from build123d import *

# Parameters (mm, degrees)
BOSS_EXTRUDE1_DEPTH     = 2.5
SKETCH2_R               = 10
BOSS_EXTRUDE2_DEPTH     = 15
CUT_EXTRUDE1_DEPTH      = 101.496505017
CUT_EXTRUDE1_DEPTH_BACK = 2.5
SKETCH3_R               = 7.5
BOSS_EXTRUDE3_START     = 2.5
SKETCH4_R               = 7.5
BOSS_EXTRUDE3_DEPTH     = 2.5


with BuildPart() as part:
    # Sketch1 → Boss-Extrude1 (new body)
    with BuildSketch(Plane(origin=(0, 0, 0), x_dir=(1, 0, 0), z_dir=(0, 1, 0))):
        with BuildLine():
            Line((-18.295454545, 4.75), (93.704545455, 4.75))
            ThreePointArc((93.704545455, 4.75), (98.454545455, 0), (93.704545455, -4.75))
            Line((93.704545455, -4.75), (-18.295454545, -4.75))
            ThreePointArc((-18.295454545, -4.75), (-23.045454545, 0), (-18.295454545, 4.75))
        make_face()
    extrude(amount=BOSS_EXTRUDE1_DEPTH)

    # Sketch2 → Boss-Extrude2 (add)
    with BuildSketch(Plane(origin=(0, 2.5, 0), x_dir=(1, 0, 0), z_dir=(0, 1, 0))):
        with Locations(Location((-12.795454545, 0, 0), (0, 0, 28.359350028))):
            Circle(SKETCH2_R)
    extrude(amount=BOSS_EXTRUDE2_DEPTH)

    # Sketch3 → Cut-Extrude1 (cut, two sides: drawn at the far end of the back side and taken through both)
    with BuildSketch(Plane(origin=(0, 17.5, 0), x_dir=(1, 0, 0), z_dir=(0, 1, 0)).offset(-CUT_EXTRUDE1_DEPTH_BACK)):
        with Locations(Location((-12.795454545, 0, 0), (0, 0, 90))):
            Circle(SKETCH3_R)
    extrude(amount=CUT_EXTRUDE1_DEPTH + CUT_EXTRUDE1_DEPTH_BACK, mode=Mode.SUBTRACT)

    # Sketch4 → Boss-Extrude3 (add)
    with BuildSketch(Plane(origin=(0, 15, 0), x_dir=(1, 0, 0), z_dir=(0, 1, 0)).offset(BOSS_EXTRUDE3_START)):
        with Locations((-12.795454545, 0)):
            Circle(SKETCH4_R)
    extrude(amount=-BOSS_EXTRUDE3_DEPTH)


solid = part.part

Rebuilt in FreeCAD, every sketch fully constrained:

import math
import FreeCAD as App
import Part
import Sketcher
from FreeCAD import Vector
Q = App.Units.Quantity

doc = App.newDocument("Part")
body = doc.addObject("PartDesign::Body", "Body")

# Sketch on XZ plane
sketch1 = body.newObject("Sketcher::SketchObject", "Sketch")
sketch1.AttachmentSupport = (doc.getObject("XZ_Plane"), [""])
sketch1.MapMode = "FlatFace"
sketch1.addGeometry([
    Part.LineSegment(Vector(93.7, -4.8, 0), Vector(-18.3, -4.8, 0)),
    Part.ArcOfCircle(Part.Circle(Vector(-18.3, 0, 0), Vector(0, 0, 1), 4.8), math.radians(90), math.radians(270)),
    Part.LineSegment(Vector(-18.3, 4.8, 0), Vector(93.7, 4.8, 0)),
    Part.ArcOfCircle(Part.Circle(Vector(93.7, 0, 0), Vector(0, 0, 1), 4.8), math.radians(-90), math.radians(90)),
], False)
sketch1.addConstraint([
    Sketcher.Constraint("Tangent", 0, 2, 1, 2),
    Sketcher.Constraint("Tangent", 1, 1, 2, 1),
    Sketcher.Constraint("Tangent", 2, 2, 3, 2),
    Sketcher.Constraint("Tangent", 3, 1, 0, 1),
    Sketcher.Constraint("Horizontal", 0),
    Sketcher.Constraint("Horizontal", 2),
    Sketcher.Constraint("PointOnObject", 1, 3, -1),
    Sketcher.Constraint("DistanceX", 0, 2, 0, 1, Q("112 mm")),
    Sketcher.Constraint("Radius", 1, Q("4.75 mm")),
    Sketcher.Constraint("DistanceX", 1, 3, -1, 1, Q("18.295455 mm")),
])
pad1 = body.newObject("PartDesign::Pad", "Pad")
pad1.Profile = sketch1
pad1.Length = 2.5
pad1.Reversed = True

# Sketch on XZ plane
sketch2 = body.newObject("Sketcher::SketchObject", "Sketch001")
sketch2.AttachmentSupport = (doc.getObject("XZ_Plane"), [""])
sketch2.MapMode = "FlatFace"
sketch2.AttachmentOffset = App.Placement(Vector(0, 0, -2.5), App.Rotation())
sketch2.addGeometry(Part.Circle(Vector(-13, 0, 0), Vector(0, 0, 1), 10), False)
sketch2.addConstraint([
    Sketcher.Constraint("PointOnObject", 0, 3, -1),
    Sketcher.Constraint("Diameter", 0, Q("20 mm")),
    Sketcher.Constraint("DistanceX", 0, 3, -1, 1, Q("12.795455 mm")),
])
pad2 = body.newObject("PartDesign::Pad", "Pad001")
pad2.Profile = sketch2
pad2.Length = 15
pad2.Reversed = True

# Sketch on XZ plane
sketch3 = body.newObject("Sketcher::SketchObject", "Sketch002")
sketch3.AttachmentSupport = (doc.getObject("XZ_Plane"), [""])
sketch3.MapMode = "FlatFace"
sketch3.AttachmentOffset = App.Placement(Vector(0, 0, -17.5), App.Rotation())
sketch3.addGeometry(Part.Circle(Vector(-13, 0, 0), Vector(0, 0, 1), 8), False)
sketch3.addConstraint([
    Sketcher.Constraint("PointOnObject", 0, 3, -1),
    Sketcher.Constraint("Diameter", 0, Q("15 mm")),
    Sketcher.Constraint("DistanceX", 0, 3, -1, 1, Q("12.795455 mm")),
])
pocket1 = body.newObject("PartDesign::Pocket", "Pocket")
pocket1.Profile = sketch3
pocket1.Type = "TwoLengths"
pocket1.Length = 101.496505
pocket1.Length2 = 2.5

# Sketch on XZ plane
sketch4 = body.newObject("Sketcher::SketchObject", "Sketch003")
sketch4.AttachmentSupport = (doc.getObject("XZ_Plane"), [""])
sketch4.MapMode = "FlatFace"
sketch4.AttachmentOffset = App.Placement(Vector(0, 0, -17.5), App.Rotation())
sketch4.addGeometry(Part.Circle(Vector(-13, 0, 0), Vector(0, 0, 1), 8), False)
sketch4.addConstraint([
    Sketcher.Constraint("PointOnObject", 0, 3, -1),
    Sketcher.Constraint("Diameter", 0, Q("15 mm")),
    Sketcher.Constraint("DistanceX", 0, 3, -1, 1, Q("12.795455 mm")),
])
pad3 = body.newObject("PartDesign::Pad", "Pad002")
pad3.Profile = sketch4
pad3.Length = 2.5

doc.recompute()
